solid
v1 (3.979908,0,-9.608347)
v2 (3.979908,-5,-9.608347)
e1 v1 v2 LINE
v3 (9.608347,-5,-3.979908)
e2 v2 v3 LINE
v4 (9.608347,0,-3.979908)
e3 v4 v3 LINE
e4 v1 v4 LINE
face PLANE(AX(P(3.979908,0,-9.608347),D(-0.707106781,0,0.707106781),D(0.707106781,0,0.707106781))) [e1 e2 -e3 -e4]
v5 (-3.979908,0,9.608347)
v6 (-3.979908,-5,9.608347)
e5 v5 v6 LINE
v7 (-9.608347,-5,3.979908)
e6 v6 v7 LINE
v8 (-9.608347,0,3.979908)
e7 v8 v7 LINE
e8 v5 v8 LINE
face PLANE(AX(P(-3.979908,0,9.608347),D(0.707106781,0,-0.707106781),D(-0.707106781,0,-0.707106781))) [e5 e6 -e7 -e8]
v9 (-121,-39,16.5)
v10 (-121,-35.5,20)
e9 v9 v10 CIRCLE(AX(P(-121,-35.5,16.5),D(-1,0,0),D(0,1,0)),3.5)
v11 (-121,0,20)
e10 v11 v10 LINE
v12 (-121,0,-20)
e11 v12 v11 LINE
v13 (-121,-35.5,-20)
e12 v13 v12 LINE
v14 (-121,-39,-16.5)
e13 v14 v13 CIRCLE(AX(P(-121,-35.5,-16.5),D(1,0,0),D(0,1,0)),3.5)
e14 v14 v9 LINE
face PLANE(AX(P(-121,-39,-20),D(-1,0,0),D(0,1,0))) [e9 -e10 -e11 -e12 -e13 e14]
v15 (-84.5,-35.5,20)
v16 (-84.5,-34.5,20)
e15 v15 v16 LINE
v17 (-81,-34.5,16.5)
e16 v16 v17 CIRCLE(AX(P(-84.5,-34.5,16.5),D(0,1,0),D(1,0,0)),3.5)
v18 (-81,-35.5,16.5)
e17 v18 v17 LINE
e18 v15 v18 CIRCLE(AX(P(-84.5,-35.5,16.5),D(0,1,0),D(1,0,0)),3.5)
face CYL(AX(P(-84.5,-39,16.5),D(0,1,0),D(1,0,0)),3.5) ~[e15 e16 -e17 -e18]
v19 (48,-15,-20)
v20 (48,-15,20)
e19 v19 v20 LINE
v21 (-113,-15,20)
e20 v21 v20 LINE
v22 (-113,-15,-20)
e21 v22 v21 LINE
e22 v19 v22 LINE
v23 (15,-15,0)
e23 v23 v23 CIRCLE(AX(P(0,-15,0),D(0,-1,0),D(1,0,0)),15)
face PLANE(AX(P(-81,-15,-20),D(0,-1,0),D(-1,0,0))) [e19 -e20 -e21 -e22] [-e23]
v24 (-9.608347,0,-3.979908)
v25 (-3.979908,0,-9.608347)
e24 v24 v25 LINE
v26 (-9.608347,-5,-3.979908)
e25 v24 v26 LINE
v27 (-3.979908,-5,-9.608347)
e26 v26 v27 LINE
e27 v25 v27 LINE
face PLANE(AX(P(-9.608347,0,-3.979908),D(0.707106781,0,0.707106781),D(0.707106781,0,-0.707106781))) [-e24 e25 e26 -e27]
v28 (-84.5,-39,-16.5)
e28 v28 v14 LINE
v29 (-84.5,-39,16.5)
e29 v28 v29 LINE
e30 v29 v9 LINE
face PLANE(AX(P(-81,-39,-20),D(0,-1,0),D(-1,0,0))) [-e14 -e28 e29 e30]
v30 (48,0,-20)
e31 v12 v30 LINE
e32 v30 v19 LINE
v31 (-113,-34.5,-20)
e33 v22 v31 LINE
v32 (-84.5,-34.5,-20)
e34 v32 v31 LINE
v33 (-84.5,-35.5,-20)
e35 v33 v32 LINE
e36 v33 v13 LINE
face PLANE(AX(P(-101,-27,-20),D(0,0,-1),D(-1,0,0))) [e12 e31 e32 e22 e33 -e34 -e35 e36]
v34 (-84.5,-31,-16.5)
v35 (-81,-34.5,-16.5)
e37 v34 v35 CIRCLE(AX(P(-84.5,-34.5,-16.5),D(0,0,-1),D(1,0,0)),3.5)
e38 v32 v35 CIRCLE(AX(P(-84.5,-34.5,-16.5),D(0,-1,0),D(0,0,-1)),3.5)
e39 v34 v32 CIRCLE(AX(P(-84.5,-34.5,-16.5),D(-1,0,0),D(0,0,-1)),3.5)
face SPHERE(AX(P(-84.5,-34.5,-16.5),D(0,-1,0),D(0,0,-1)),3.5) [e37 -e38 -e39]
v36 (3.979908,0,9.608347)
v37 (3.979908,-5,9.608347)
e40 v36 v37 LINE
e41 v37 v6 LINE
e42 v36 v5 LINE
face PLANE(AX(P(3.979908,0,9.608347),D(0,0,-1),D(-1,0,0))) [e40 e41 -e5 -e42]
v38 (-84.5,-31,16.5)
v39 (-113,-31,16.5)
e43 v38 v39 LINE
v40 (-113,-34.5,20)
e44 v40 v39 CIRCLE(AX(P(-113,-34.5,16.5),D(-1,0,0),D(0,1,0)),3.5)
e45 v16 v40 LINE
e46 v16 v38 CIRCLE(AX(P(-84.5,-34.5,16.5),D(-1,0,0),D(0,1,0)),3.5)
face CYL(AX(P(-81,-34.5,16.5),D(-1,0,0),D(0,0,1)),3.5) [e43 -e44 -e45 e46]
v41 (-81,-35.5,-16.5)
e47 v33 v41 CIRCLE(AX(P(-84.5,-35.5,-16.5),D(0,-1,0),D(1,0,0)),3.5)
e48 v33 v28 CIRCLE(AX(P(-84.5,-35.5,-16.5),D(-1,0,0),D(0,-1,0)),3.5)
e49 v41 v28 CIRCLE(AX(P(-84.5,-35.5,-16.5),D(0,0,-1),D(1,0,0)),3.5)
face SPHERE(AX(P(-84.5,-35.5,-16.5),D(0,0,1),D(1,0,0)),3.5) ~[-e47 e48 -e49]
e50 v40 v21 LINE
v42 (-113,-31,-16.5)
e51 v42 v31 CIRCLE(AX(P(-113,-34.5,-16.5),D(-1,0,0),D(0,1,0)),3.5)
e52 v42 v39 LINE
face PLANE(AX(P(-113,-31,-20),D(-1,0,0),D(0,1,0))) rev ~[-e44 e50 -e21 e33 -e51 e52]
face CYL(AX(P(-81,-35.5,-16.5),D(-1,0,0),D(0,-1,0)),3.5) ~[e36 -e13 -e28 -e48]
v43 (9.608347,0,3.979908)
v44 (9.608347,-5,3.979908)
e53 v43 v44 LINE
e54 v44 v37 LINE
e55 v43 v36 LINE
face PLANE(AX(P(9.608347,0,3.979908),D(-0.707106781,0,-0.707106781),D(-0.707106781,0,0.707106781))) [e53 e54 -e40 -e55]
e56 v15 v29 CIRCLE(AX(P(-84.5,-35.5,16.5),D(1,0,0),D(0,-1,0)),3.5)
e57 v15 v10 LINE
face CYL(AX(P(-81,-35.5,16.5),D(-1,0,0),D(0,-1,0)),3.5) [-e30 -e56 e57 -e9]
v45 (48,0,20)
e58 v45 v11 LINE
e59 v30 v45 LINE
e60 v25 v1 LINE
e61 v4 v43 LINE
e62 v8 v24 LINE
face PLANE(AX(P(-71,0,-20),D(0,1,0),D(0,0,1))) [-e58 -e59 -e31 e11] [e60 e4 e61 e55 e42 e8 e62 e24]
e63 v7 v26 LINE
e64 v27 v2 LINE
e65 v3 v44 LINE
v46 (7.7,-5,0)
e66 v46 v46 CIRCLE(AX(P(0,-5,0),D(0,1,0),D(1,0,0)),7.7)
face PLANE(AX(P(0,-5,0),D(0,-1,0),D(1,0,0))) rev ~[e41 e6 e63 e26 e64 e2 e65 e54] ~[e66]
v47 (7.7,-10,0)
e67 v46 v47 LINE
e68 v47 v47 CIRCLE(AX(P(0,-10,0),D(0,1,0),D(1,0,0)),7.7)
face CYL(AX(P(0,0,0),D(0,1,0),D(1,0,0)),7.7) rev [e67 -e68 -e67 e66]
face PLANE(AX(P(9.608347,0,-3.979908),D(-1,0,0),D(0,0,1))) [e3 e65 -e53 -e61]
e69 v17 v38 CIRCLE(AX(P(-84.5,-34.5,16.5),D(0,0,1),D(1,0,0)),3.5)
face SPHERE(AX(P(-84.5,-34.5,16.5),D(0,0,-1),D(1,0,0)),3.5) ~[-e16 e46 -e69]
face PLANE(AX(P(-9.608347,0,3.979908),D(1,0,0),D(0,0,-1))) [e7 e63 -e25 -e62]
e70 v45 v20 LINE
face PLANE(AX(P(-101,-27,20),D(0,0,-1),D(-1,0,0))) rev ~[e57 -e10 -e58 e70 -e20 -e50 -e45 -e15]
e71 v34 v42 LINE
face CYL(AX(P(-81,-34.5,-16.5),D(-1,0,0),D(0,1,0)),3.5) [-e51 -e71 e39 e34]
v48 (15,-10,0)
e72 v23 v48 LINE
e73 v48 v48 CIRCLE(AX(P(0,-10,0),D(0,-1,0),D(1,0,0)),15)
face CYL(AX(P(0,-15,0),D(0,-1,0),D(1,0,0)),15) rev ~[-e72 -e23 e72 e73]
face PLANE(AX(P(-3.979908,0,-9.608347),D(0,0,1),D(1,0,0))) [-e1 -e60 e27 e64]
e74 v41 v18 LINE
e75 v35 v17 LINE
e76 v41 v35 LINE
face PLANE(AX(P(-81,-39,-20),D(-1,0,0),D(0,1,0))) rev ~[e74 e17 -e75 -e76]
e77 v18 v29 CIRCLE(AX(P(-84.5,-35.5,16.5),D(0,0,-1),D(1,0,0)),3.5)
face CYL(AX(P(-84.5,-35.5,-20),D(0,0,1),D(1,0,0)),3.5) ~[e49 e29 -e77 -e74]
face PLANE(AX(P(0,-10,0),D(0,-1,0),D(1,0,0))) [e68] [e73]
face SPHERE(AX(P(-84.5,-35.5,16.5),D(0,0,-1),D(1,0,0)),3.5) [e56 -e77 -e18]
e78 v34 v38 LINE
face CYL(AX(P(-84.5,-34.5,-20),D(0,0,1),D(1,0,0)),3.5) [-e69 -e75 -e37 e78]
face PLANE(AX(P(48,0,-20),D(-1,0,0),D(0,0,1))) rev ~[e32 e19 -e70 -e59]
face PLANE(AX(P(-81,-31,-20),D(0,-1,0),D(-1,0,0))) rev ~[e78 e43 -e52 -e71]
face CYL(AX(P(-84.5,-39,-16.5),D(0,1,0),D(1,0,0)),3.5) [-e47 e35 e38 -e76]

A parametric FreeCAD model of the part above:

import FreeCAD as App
import Part
import Sketcher

V = App.Vector
Q = App.Units.Quantity


def edges_at(feature, points):
    """Names of the edges that pass closest to the given points."""
    edges = feature.Shape.Edges
    near = lambda p: min(range(len(edges)), key=lambda i: edges[i].distToShape(Part.Vertex(*p))[0])
    return sorted({f"Edge{near(p) + 1}" for p in points})


def add_polygon(sketch, points):
    """Adds a closed chain of lines whose ends are joined by coincident constraints."""
    first, n = sketch.GeometryCount, len(points)
    for a, b in zip(points, points[1:] + points[:1]):
        sketch.addGeometry(Part.LineSegment(App.Vector(*a, 0), App.Vector(*b, 0)), False)
    for i in range(n):
        sketch.addConstraint(Sketcher.Constraint("Coincident", first + i, 2, first + (i + 1) % n, 1))

doc = App.newDocument("Part")
body = doc.addObject("PartDesign::Body", "Body")

# Sketch on YZ plane
sketch1 = doc.addObject("Sketcher::SketchObject", "Sketch")
body.addObject(sketch1)
sketch1.AttachmentSupport = (doc.YZ_Plane, [""])
sketch1.MapMode = "FlatFace"
add_polygon(sketch1, [(0, 15), (0, 0), (40, 0), (40, 15)])  # lines 0-3
sketch1.addConstraint(Sketcher.Constraint("Vertical", 0))
sketch1.addConstraint(Sketcher.Constraint("Horizontal", 1))
sketch1.addConstraint(Sketcher.Constraint("Vertical", 2))
sketch1.addConstraint(Sketcher.Constraint("Horizontal", 3))
sketch1.addConstraint(Sketcher.Constraint("Coincident", 0, 2, -1, 1))
sketch1.addConstraint(Sketcher.Constraint("DistanceX", 1, 1, 1, 2, Q("40 mm")))
sketch1.addConstraint(Sketcher.Constraint("DistanceY", 0, 2, 0, 1, Q("15 mm")))
pad1 = doc.addObject("PartDesign::Pad", "Pad")
body.addObject(pad1)
pad1.Profile = sketch1
pad1.Length = 50

# Sketch on XZ plane
sketch2 = doc.addObject("Sketcher::SketchObject", "Sketch001")
body.addObject(sketch2)
sketch2.AttachmentSupport = (doc.XZ_Plane, [""])
sketch2.MapMode = "FlatFace"
add_polygon(sketch2, [(10, 0), (10, -24), (50, -24), (50, 0)])  # lines 0-3
sketch2.addConstraint(Sketcher.Constraint("Vertical", 0))
sketch2.addConstraint(Sketcher.Constraint("Horizontal", 1))
sketch2.addConstraint(Sketcher.Constraint("Vertical", 2))
sketch2.addConstraint(Sketcher.Constraint("Horizontal", 3))
sketch2.addConstraint(Sketcher.Constraint("PointOnObject", 2, 2, -1))
sketch2.addConstraint(Sketcher.Constraint("DistanceX", 1, 1, 1, 2, Q("40 mm")))
sketch2.addConstraint(Sketcher.Constraint("DistanceY", 0, 2, 0, 1, Q("24 mm")))
sketch2.addConstraint(Sketcher.Constraint("DistanceX", -1, 1, 0, 2, Q("10 mm")))
pad2 = doc.addObject("PartDesign::Pad", "Pad001")
body.addObject(pad2)
pad2.Profile = sketch2
pad2.Length = 40
pad2.Reversed = True

# Sketch on XZ plane
sketch3 = doc.addObject("Sketcher::SketchObject", "Sketch002")
body.addObject(sketch3)
sketch3.AttachmentSupport = (doc.XZ_Plane, [""])
sketch3.MapMode = "FlatFace"
add_polygon(sketch3, [(10, 0), (10, -16), (42, -16), (42, 0)])  # lines 0-3
sketch3.addConstraint(Sketcher.Constraint("Vertical", 0))
sketch3.addConstraint(Sketcher.Constraint("Horizontal", 1))
sketch3.addConstraint(Sketcher.Constraint("Vertical", 2))
sketch3.addConstraint(Sketcher.Constraint("Horizontal", 3))
sketch3.addConstraint(Sketcher.Constraint("PointOnObject", 2, 2, -1))
sketch3.addConstraint(Sketcher.Constraint("DistanceX", 1, 1, 1, 2, Q("32 mm")))
sketch3.addConstraint(Sketcher.Constraint("DistanceY", 0, 2, 0, 1, Q("16 mm")))
sketch3.addConstraint(Sketcher.Constraint("DistanceX", -1, 1, 0, 2, Q("10 mm")))
pocket1 = doc.addObject("PartDesign::Pocket", "Pocket")
body.addObject(pocket1)
pocket1.Profile = sketch3
pocket1.Type = "ThroughAll"
doc.recompute()

fillet = doc.addObject("PartDesign::Fillet", "Fillet")
body.addObject(fillet)
fillet.Base = (pocket1, edges_at(pocket1, [
    (10, 20, -24),
    (10, 0, -20),
    (26, 0, -16),
    (30, 0, -24),
    (10, 20, -16),
    (10, 40, -20),
    (30, 40, -24),
    (26, 40, -16),
]))
fillet.Radius = 3.5
body2 = doc.addObject("PartDesign::Body", "Body001")
doc.recompute()

body.Placement = App.Placement(V(0, 0, 0), App.Rotation(V(1, 0, 0), 90))
boolean = doc.addObject("PartDesign::Boolean", "Boolean")
body2.addObject(boolean)
boolean.Type = "Fuse"
boolean.addObjects([body])
body3 = doc.addObject("PartDesign::Body", "Body002")
doc.recompute()

body2.Placement = App.Placement(V(-71, -15, -20), App.Rotation(V(0, 0, 1), 180))
boolean2 = doc.addObject("PartDesign::Boolean", "Boolean001")
body3.addObject(boolean2)
boolean2.Type = "Fuse"
boolean2.addObjects([body2])
body4 = doc.addObject("PartDesign::Body", "Body003")

# Sketch on XZ plane
sketch4 = doc.addObject("Sketcher::SketchObject", "Sketch003")
body4.addObject(sketch4)
sketch4.AttachmentSupport = (doc.getObject("XZ_Plane003"), [""])
sketch4.MapMode = "FlatFace"
add_polygon(sketch4, [(-72, 20), (-72, -20), (48, -20), (48, 20)])  # lines 0-3
sketch4.addConstraint(Sketcher.Constraint("Vertical", 0))
sketch4.addConstraint(Sketcher.Constraint("Horizontal", 1))
sketch4.addConstraint(Sketcher.Constraint("Vertical", 2))
sketch4.addConstraint(Sketcher.Constraint("Horizontal", 3))
sketch4.addConstraint(Sketcher.Constraint("DistanceX", 1, 1, 1, 2, Q("120 mm")))
sketch4.addConstraint(Sketcher.Constraint("DistanceY", 0, 2, 0, 1, Q("40 mm")))
sketch4.addConstraint(Sketcher.Constraint("DistanceX", 0, 2, -1, 1, Q("72 mm")))
sketch4.addConstraint(Sketcher.Constraint("DistanceY", 0, 2, -1, 1, Q("20 mm")))
pad3 = doc.addObject("PartDesign::Pad", "Pad002")
body4.addObject(pad3)
pad3.Profile = sketch4
pad3.Length = 15

# Sketch on XZ plane
sketch5 = doc.addObject("Sketcher::SketchObject", "Sketch004")
body4.addObject(sketch5)
sketch5.AttachmentSupport = (doc.getObject("XZ_Plane003"), [""])
sketch5.MapMode = "FlatFace"
sketch5.AttachmentOffset = App.Placement(V(0, 0, 15), App.Rotation())
sketch5.addGeometry(Part.Circle(V(0, 0, 0), V(0, 0, 1), 15), False)
sketch5.addConstraint(Sketcher.Constraint("Coincident", 0, 3, -1, 1))
sketch5.addConstraint(Sketcher.Constraint("Diameter", 0, Q("30 mm")))
pocket2 = doc.addObject("PartDesign::Pocket", "Pocket001")
body4.addObject(pocket2)
pocket2.Profile = sketch5
pocket2.Length = 5

# Sketch on XZ plane
sketch6 = doc.addObject("Sketcher::SketchObject", "Sketch005")
body4.addObject(sketch6)
sketch6.AttachmentSupport = (doc.getObject("XZ_Plane003"), [""])
sketch6.MapMode = "FlatFace"
add_polygon(sketch6, [(10, 4), (4, 10), (-4, 10), (-10, 4), (-10, -4), (-4, -10), (4, -10), (10, -4)])  # lines 0-7
sketch6.addConstraint(Sketcher.Constraint("Horizontal", 1))
sketch6.addConstraint(Sketcher.Constraint("Vertical", 3))
sketch6.addConstraint(Sketcher.Constraint("Horizontal", 5))
sketch6.addConstraint(Sketcher.Constraint("Vertical", 7))
sketch6.addConstraint(Sketcher.Constraint("Symmetric", 0, 2, 4, 2, -1, 1))
sketch6.addConstraint(Sketcher.Constraint("Symmetric", 2, 2, 6, 2, -1, 1))
sketch6.addConstraint(Sketcher.Constraint("Perpendicular", 0, 2))
sketch6.addConstraint(Sketcher.Constraint("Perpendicular", 2, 4))
sketch6.addConstraint(Sketcher.Constraint("Perpendicular", 4, 6))
sketch6.addConstraint(Sketcher.Constraint("Horizontal", 3, 2, 6, 2))
sketch6.addConstraint(Sketcher.Constraint("Vertical", 1, 2, 4, 2))
sketch6.addConstraint(Sketcher.Constraint("Equal", 5, 3))
sketch6.addConstraint(Sketcher.Constraint("DistanceX", 1, 2, 1, 1, Q("7.959816 mm")))
sketch6.addConstraint(Sketcher.Constraint("DistanceX", 2, 2, 1, 2, Q("5.628439 mm")))
pocket3 = doc.addObject("PartDesign::Pocket", "Pocket002")
body4.addObject(pocket3)
pocket3.Profile = sketch6
pocket3.Length = 5
pocket3.Reversed = True

# Sketch on XZ plane
sketch7 = doc.addObject("Sketcher::SketchObject", "Sketch006")
body4.addObject(sketch7)
sketch7.AttachmentSupport = (doc.getObject("XZ_Plane003"), [""])
sketch7.MapMode = "FlatFace"
sketch7.addGeometry(Part.Circle(V(0, 0, 0), V(0, 0, 1), 8), False)
sketch7.addConstraint(Sketcher.Constraint("Coincident", 0, 3, -1, 1))
sketch7.addConstraint(Sketcher.Constraint("Diameter", 0, Q("15.4 mm")))
pocket4 = doc.addObject("PartDesign::Pocket", "Pocket003")
body4.addObject(pocket4)
pocket4.Profile = sketch7
pocket4.Type = "ThroughAll"
pocket4.Reversed = True
doc.recompute()

boolean3 = doc.addObject("PartDesign::Boolean", "Boolean002")
body4.addObject(boolean3)
boolean3.Type = "Fuse"
boolean3.addObjects([body3])

doc.recompute()
